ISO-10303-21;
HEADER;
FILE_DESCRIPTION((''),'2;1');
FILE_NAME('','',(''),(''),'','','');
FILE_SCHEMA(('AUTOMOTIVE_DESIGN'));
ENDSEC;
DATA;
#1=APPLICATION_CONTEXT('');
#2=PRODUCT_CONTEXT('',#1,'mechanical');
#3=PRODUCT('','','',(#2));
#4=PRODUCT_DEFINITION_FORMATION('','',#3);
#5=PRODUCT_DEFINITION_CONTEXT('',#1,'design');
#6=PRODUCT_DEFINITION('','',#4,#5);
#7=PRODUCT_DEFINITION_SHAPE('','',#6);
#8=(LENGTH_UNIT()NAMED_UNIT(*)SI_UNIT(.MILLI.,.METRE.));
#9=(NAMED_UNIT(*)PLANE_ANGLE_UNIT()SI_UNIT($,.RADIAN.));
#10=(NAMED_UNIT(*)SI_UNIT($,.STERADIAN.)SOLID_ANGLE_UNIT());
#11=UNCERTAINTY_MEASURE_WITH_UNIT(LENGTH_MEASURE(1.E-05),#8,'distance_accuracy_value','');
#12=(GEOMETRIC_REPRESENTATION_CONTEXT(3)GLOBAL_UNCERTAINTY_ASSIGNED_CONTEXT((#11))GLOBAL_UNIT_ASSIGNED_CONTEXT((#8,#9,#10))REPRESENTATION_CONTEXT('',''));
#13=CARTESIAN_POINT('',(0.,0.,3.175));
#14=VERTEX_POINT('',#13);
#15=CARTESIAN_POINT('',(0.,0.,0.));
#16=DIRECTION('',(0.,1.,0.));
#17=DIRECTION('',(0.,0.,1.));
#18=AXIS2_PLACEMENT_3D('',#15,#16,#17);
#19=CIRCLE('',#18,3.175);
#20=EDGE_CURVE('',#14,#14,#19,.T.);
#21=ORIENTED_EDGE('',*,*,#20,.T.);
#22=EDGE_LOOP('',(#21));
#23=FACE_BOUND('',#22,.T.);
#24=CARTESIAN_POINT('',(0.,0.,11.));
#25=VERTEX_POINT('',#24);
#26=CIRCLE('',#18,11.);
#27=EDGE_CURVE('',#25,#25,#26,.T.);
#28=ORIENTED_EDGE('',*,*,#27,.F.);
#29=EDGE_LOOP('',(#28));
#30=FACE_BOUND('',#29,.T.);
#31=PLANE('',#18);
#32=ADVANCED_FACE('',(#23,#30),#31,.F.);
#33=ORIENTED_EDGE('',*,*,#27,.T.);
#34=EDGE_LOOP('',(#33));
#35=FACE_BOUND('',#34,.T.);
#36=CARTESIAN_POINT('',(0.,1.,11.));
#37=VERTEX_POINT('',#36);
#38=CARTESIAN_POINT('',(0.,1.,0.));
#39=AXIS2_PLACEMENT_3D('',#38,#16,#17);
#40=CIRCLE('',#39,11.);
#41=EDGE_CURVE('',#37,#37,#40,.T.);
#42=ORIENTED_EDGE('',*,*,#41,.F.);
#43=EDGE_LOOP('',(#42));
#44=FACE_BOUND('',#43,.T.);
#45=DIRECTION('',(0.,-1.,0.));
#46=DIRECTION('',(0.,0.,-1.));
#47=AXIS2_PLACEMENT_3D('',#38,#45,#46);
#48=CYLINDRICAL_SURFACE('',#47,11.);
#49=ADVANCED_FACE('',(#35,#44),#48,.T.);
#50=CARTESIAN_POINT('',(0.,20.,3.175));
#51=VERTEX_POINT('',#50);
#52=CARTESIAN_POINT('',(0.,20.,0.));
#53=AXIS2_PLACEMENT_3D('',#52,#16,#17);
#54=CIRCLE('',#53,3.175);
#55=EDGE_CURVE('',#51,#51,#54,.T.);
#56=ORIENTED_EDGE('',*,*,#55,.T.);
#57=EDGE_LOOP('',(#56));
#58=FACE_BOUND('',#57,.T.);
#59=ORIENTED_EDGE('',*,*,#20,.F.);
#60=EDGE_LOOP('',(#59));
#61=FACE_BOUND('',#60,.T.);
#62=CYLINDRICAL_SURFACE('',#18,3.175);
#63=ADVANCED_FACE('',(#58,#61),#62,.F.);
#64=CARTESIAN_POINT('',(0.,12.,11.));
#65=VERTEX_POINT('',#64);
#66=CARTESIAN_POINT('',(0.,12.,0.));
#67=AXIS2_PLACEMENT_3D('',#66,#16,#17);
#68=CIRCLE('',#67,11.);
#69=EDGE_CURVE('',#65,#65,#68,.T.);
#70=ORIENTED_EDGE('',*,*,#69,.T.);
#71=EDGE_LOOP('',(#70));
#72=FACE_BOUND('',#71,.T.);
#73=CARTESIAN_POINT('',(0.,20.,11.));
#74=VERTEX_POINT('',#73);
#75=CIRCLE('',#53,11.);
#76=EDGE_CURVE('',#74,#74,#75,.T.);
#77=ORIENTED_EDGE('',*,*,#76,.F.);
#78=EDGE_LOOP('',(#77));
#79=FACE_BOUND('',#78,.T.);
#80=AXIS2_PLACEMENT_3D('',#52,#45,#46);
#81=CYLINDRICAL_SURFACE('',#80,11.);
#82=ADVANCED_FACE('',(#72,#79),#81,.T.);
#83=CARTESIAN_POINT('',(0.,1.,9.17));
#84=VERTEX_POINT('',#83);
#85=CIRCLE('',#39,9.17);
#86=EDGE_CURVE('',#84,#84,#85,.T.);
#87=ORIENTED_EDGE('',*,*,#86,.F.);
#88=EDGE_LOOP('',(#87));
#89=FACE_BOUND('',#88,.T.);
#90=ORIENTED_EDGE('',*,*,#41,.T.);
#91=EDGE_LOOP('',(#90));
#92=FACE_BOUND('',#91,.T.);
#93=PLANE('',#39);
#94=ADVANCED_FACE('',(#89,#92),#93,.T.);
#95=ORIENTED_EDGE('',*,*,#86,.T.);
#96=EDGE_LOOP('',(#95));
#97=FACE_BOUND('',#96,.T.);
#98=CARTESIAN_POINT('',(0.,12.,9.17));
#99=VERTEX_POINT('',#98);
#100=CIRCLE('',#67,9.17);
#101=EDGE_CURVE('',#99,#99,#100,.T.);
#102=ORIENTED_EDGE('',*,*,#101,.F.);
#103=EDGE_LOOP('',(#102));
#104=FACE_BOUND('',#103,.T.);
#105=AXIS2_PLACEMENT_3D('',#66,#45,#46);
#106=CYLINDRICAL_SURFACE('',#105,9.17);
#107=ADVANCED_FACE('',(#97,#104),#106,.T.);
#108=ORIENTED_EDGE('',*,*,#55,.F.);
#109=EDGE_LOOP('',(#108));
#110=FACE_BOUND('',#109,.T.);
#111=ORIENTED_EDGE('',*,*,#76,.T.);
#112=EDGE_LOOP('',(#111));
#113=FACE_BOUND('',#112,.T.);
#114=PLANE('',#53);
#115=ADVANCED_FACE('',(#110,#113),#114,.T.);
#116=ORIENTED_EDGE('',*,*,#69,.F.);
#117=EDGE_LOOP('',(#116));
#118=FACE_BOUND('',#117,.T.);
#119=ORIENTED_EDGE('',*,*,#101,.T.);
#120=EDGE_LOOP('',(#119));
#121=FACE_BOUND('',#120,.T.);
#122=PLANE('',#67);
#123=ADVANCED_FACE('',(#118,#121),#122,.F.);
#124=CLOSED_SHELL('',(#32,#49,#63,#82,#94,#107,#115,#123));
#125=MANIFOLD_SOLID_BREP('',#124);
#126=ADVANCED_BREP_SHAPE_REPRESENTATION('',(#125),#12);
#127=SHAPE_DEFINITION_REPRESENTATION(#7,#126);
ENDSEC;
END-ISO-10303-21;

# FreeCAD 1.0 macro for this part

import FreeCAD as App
import Part
import Sketcher
from FreeCAD import Vector
Q = App.Units.Quantity

doc = App.newDocument("Part")
params = doc.addObject("Spreadsheet::Sheet", "Params")
for row, (alias, value) in enumerate([
    ("sketch1_diameter", "22 mm"),
    ("pad1_length", "1 mm"),
    ("sketch2_diameter", "18.34 mm"),
    ("pad2_length", "11 mm"),
    ("sketch3_diameter", "22 mm"),
    ("pad3_length", "8 mm"),
    ("sketch4_diameter", "6.35 mm"),
], start=1):
    params.set(f"A{row}", alias)
    params.set(f"B{row}", "=" + value)
    params.setAlias(f"B{row}", alias)

body = doc.addObject("PartDesign::Body", "Body")

sketch1 = body.newObject("Sketcher::SketchObject", "Sketch")
sketch1.AttachmentSupport = (doc.getObject("XZ_Plane"), [""])
sketch1.MapMode = "FlatFace"
sketch1.addGeometry(Part.Circle(Vector(0, 0, 0), Vector(0, 0, 1), 11), False)
sketch1.addConstraint([
    Sketcher.Constraint("Coincident", 0, 3, -1, 1),
    Sketcher.Constraint("Diameter", 0, Q("22 mm")),
])
sketch1.setExpression("Constraints[1]", "Params.sketch1_diameter")
pad1 = body.newObject("PartDesign::Pad", "Pad")
pad1.Profile = sketch1
pad1.setExpression("Length", "Params.pad1_length")
pad1.Reversed = True

sketch2 = body.newObject("Sketcher::SketchObject", "Sketch001")
sketch2.AttachmentSupport = (doc.getObject("XZ_Plane"), [""])
sketch2.MapMode = "FlatFace"
sketch2.AttachmentOffset = App.Placement(Vector(0, 0, -1), App.Rotation())
sketch2.addGeometry(Part.Circle(Vector(0, 0, 0), Vector(0, 0, 1), 9), False)
sketch2.addConstraint([
    Sketcher.Constraint("Coincident", 0, 3, -1, 1),
    Sketcher.Constraint("Diameter", 0, Q("18.34 mm")),
])
sketch2.setExpression("Constraints[1]", "Params.sketch2_diameter")
pad2 = body.newObject("PartDesign::Pad", "Pad001")
pad2.Profile = sketch2
pad2.setExpression("Length", "Params.pad2_length")
pad2.Reversed = True

sketch3 = body.newObject("Sketcher::SketchObject", "Sketch002")
sketch3.AttachmentSupport = (doc.getObject("XZ_Plane"), [""])
sketch3.MapMode = "FlatFace"
sketch3.AttachmentOffset = App.Placement(Vector(0, 0, -12), App.Rotation())
sketch3.addGeometry(Part.Circle(Vector(0, 0, 0), Vector(0, 0, 1), 11), False)
sketch3.addConstraint([
    Sketcher.Constraint("Coincident", 0, 3, -1, 1),
    Sketcher.Constraint("Diameter", 0, Q("22 mm")),
])
sketch3.setExpression("Constraints[1]", "Params.sketch3_diameter")
pad3 = body.newObject("PartDesign::Pad", "Pad002")
pad3.Profile = sketch3
pad3.setExpression("Length", "Params.pad3_length")
pad3.Reversed = True

sketch4 = body.newObject("Sketcher::SketchObject", "Sketch003")
sketch4.AttachmentSupport = (doc.getObject("XZ_Plane"), [""])
sketch4.MapMode = "FlatFace"
sketch4.AttachmentOffset = App.Placement(Vector(0, 0, -20), App.Rotation())
sketch4.addGeometry(Part.Circle(Vector(0, 0, 0), Vector(0, 0, 1), 3.2), False)
sketch4.addConstraint([
    Sketcher.Constraint("Coincident", 0, 3, -1, 1),
    Sketcher.Constraint("Diameter", 0, Q("6.35 mm")),
])
sketch4.setExpression("Constraints[1]", "Params.sketch4_diameter")
pocket1 = body.newObject("PartDesign::Pocket", "Pocket")
pocket1.Profile = sketch4
pocket1.Type = "ThroughAll"
pocket1.Reversed = True

doc.recompute()
